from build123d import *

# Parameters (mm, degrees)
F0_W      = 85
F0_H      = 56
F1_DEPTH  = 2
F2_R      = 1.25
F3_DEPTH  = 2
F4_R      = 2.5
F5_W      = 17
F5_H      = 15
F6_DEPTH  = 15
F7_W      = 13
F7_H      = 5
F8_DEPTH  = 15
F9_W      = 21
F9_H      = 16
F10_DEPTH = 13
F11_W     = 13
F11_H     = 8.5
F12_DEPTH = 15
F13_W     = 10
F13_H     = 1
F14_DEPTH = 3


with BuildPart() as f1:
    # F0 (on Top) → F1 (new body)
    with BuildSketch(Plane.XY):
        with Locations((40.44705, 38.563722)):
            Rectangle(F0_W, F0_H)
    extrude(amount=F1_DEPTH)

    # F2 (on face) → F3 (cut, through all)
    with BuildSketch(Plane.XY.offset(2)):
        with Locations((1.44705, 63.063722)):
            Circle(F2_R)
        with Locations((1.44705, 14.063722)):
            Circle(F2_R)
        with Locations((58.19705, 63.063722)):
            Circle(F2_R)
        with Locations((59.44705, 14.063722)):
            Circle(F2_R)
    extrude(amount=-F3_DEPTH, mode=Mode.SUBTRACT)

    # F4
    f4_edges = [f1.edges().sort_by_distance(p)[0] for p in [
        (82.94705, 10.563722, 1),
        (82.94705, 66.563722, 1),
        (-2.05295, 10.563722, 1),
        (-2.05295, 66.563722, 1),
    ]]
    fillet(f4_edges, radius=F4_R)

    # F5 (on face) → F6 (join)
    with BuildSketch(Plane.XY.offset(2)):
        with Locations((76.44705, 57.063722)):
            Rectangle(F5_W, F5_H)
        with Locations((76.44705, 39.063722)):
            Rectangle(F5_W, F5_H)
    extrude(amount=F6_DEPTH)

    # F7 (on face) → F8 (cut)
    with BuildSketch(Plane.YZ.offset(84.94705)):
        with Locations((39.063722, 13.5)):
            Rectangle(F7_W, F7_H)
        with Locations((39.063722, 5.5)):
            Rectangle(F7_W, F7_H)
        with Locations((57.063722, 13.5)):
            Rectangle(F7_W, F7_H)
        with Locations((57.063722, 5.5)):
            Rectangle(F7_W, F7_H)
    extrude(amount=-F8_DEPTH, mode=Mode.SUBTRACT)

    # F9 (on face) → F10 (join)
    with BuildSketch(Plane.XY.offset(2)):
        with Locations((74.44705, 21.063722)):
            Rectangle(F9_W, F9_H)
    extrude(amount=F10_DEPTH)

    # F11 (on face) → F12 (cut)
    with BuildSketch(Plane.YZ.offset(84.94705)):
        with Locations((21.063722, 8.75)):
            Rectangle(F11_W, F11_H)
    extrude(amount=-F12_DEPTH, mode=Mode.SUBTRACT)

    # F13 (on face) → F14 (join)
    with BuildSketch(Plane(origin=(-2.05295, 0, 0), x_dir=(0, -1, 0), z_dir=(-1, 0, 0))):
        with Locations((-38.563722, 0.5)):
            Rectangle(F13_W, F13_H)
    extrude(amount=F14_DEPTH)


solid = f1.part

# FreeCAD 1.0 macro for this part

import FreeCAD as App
import Part
import Sketcher


def edges_at(feature, points):
    """Names of the edges that pass closest to the given points."""
    edges = feature.Shape.Edges
    near = lambda p: min(range(len(edges)), key=lambda i: edges[i].distToShape(Part.Vertex(*p))[0])
    return sorted({f"Edge{near(p) + 1}" for p in points})


def add_polygon(sketch, points):
    """Adds a closed chain of lines whose ends are joined by coincident constraints."""
    first, n = sketch.GeometryCount, len(points)
    for a, b in zip(points, points[1:] + points[:1]):
        sketch.addGeometry(Part.LineSegment(App.Vector(*a, 0), App.Vector(*b, 0)), False)
    for i in range(n):
        sketch.addConstraint(Sketcher.Constraint("Coincident", first + i, 2, first + (i + 1) % n, 1))

doc = App.newDocument("Part")
body = doc.addObject("PartDesign::Body", "Body")

# Sketch on XY plane
sketch1 = doc.addObject("Sketcher::SketchObject", "Sketch")
body.addObject(sketch1)
sketch1.AttachmentSupport = (doc.XY_Plane, [""])
sketch1.MapMode = "FlatFace"
add_polygon(sketch1, [(-2, 67), (-2, 11), (83, 11), (83, 67)])  # lines 0-3
sketch1.addConstraint(Sketcher.Constraint("Vertical", 0))
sketch1.addConstraint(Sketcher.Constraint("Horizontal", 1))
sketch1.addConstraint(Sketcher.Constraint("Vertical", 2))
sketch1.addConstraint(Sketcher.Constraint("Horizontal", 3))
sketch1.addConstraint(Sketcher.Constraint("DistanceX", 1, 1, 1, 2, 85.0))
sketch1.addConstraint(Sketcher.Constraint("DistanceY", 0, 2, 0, 1, 56.0))
sketch1.addConstraint(Sketcher.Constraint("DistanceX", 0, 2, -1, 1, 2.05295))
sketch1.addConstraint(Sketcher.Constraint("DistanceY", -1, 1, 2, 2, 66.563722))
pad1 = doc.addObject("PartDesign::Pad", "Pad")
body.addObject(pad1)
pad1.Profile = sketch1
pad1.Length = 2

# Sketch on XY plane
sketch2 = doc.addObject("Sketcher::SketchObject", "Sketch001")
body.addObject(sketch2)
sketch2.AttachmentSupport = (doc.XY_Plane, [""])
sketch2.MapMode = "FlatFace"
sketch2.AttachmentOffset = App.Placement(App.Vector(0, 0, 2), App.Rotation())
sketch2.addGeometry(Part.Circle(App.Vector(1.4, 63.1, 0), App.Vector(0, 0, 1), 1.2), False)
sketch2.addGeometry(Part.Circle(App.Vector(1.4, 14.1, 0), App.Vector(0, 0, 1), 1.2), False)
sketch2.addGeometry(Part.Circle(App.Vector(58.2, 63.1, 0), App.Vector(0, 0, 1), 1.2), False)
sketch2.addGeometry(Part.Circle(App.Vector(59.4, 14.1, 0), App.Vector(0, 0, 1), 1.2), False)
sketch2.addConstraint(Sketcher.Constraint("Equal", 0, 1))
sketch2.addConstraint(Sketcher.Constraint("Equal", 1, 2))
sketch2.addConstraint(Sketcher.Constraint("Equal", 2, 3))
sketch2.addConstraint(Sketcher.Constraint("Horizontal", 0, 3, 2, 3))
sketch2.addConstraint(Sketcher.Constraint("Horizontal", 1, 3, 3, 3))
sketch2.addConstraint(Sketcher.Constraint("Vertical", 0, 3, 1, 3))
sketch2.addConstraint(Sketcher.Constraint("Diameter", 0, 2.5))
sketch2.addConstraint(Sketcher.Constraint("DistanceY", 1, 3, 0, 3, 49.0))
sketch2.addConstraint(Sketcher.Constraint("DistanceX", 1, 3, 3, 3, 58.0))
sketch2.addConstraint(Sketcher.Constraint("DistanceX", 0, 3, 2, 3, 56.75))
sketch2.addConstraint(Sketcher.Constraint("DistanceX", -1, 1, 0, 3, 1.44705))
sketch2.addConstraint(Sketcher.Constraint("DistanceY", -1, 1, 0, 3, 63.063722))
pocket1 = doc.addObject("PartDesign::Pocket", "Pocket")
body.addObject(pocket1)
pocket1.Profile = sketch2
pocket1.Type = "ThroughAll"
doc.recompute()

fillet = doc.addObject("PartDesign::Fillet", "Fillet")
body.addObject(fillet)
fillet.Base = (pocket1, edges_at(pocket1, [
    (82.947, 10.564, 1),
    (82.947, 66.564, 1),
    (-2.053, 10.564, 1),
    (-2.053, 66.564, 1),
]))
fillet.Radius = 2.5

# Sketch on XY plane
sketch3 = doc.addObject("Sketcher::SketchObject", "Sketch002")
body.addObject(sketch3)
sketch3.AttachmentSupport = (doc.XY_Plane, [""])
sketch3.MapMode = "FlatFace"
sketch3.AttachmentOffset = App.Placement(App.Vector(0, 0, 2), App.Rotation())
add_polygon(sketch3, [(68, 65), (68, 50), (85, 50), (85, 65)])  # lines 0-3
add_polygon(sketch3, [(68, 47), (68, 32), (85, 32), (85, 47)])  # lines 4-7
sketch3.addConstraint(Sketcher.Constraint("Vertical", 0))
sketch3.addConstraint(Sketcher.Constraint("Horizontal", 1))
sketch3.addConstraint(Sketcher.Constraint("Vertical", 2))
sketch3.addConstraint(Sketcher.Constraint("Horizontal", 3))
sketch3.addConstraint(Sketcher.Constraint("Vertical", 4))
sketch3.addConstraint(Sketcher.Constraint("Horizontal", 5))
sketch3.addConstraint(Sketcher.Constraint("Vertical", 6))
sketch3.addConstraint(Sketcher.Constraint("Horizontal", 7))
sketch3.addConstraint(Sketcher.Constraint("Vertical", 3, 2, 4, 2))
sketch3.addConstraint(Sketcher.Constraint("Vertical", 2, 2, 5, 2))
sketch3.addConstraint(Sketcher.Constraint("Equal", 2, 4))
sketch3.addConstraint(Sketcher.Constraint("DistanceX", 1, 1, 1, 2, 17.0))
sketch3.addConstraint(Sketcher.Constraint("DistanceY", 0, 2, 0, 1, 15.0))
sketch3.addConstraint(Sketcher.Constraint("DistanceY", 4, 2, 0, 2, 18.0))
sketch3.addConstraint(Sketcher.Constraint("DistanceX", -1, 1, 0, 2, 67.94705))
sketch3.addConstraint(Sketcher.Constraint("DistanceY", -1, 1, 0, 2, 49.563722))
pad2 = doc.addObject("PartDesign::Pad", "Pad001")
body.addObject(pad2)
pad2.Profile = sketch3
pad2.Length = 15

# Sketch on YZ plane
sketch4 = doc.addObject("Sketcher::SketchObject", "Sketch003")
body.addObject(sketch4)
sketch4.AttachmentSupport = (doc.YZ_Plane, [""])
sketch4.MapMode = "FlatFace"
sketch4.AttachmentOffset = App.Placement(App.Vector(0, 0, 84.94705), App.Rotation())
add_polygon(sketch4, [(33, 16), (33, 11), (46, 11), (46, 16)])  # lines 0-3
add_polygon(sketch4, [(33, 8), (33, 3), (46, 3), (46, 8)])  # lines 4-7
add_polygon(sketch4, [(51, 16), (51, 11), (64, 11), (64, 16)])  # lines 8-11
add_polygon(sketch4, [(51, 8), (51, 3), (64, 3), (64, 8)])  # lines 12-15
sketch4.addConstraint(Sketcher.Constraint("Vertical", 0))
sketch4.addConstraint(Sketcher.Constraint("Horizontal", 1))
sketch4.addConstraint(Sketcher.Constraint("Vertical", 2))
sketch4.addConstraint(Sketcher.Constraint("Horizontal", 3))
sketch4.addConstraint(Sketcher.Constraint("Vertical", 4))
sketch4.addConstraint(Sketcher.Constraint("Horizontal", 5))
sketch4.addConstraint(Sketcher.Constraint("Vertical", 6))
sketch4.addConstraint(Sketcher.Constraint("Horizontal", 7))
sketch4.addConstraint(Sketcher.Constraint("Vertical", 8))
sketch4.addConstraint(Sketcher.Constraint("Horizontal", 9))
sketch4.addConstraint(Sketcher.Constraint("Vertical", 10))
sketch4.addConstraint(Sketcher.Constraint("Horizontal", 11))
sketch4.addConstraint(Sketcher.Constraint("Vertical", 12))
sketch4.addConstraint(Sketcher.Constraint("Horizontal", 13))
sketch4.addConstraint(Sketcher.Constraint("Vertical", 14))
sketch4.addConstraint(Sketcher.Constraint("Horizontal", 15))
sketch4.addConstraint(Sketcher.Constraint("Horizontal", 1, 2, 8, 2))
sketch4.addConstraint(Sketcher.Constraint("Horizontal", 3, 2, 10, 2))
sketch4.addConstraint(Sketcher.Constraint("Horizontal", 5, 2, 12, 2))
sketch4.addConstraint(Sketcher.Constraint("Horizontal", 7, 2, 14, 2))
sketch4.addConstraint(Sketcher.Constraint("Vertical", 3, 2, 4, 2))
sketch4.addConstraint(Sketcher.Constraint("Vertical", 2, 2, 5, 2))
sketch4.addConstraint(Sketcher.Constraint("Vertical", 11, 2, 12, 2))
sketch4.addConstraint(Sketcher.Constraint("Vertical", 10, 2, 13, 2))
sketch4.addConstraint(Sketcher.Constraint("Equal", 7, 9))
sketch4.addConstraint(Sketcher.Constraint("Equal", 2, 4))
sketch4.addConstraint(Sketcher.Constraint("DistanceX", 1, 1, 1, 2, 13.0))
sketch4.addConstraint(Sketcher.Constraint("DistanceY", 0, 2, 0, 1, 5.0))
sketch4.addConstraint(Sketcher.Constraint("DistanceY", -1, 1, 0, 2, 11.0))
sketch4.addConstraint(Sketcher.Constraint("DistanceY", -1, 1, 4, 2, 3.0))
sketch4.addConstraint(Sketcher.Constraint("DistanceX", 1, 2, 8, 2, 5.0))
sketch4.addConstraint(Sketcher.Constraint("DistanceX", -1, 1, 0, 2, 32.563722))
pocket2 = doc.addObject("PartDesign::Pocket", "Pocket001")
body.addObject(pocket2)
pocket2.Profile = sketch4
pocket2.Length = 15

# Sketch on XY plane
sketch5 = doc.addObject("Sketcher::SketchObject", "Sketch004")
body.addObject(sketch5)
sketch5.AttachmentSupport = (doc.XY_Plane, [""])
sketch5.MapMode = "FlatFace"
sketch5.AttachmentOffset = App.Placement(App.Vector(0, 0, 2), App.Rotation())
add_polygon(sketch5, [(64, 29), (64, 13), (85, 13), (85, 29)])  # lines 0-3
sketch5.addConstraint(Sketcher.Constraint("Vertical", 0))
sketch5.addConstraint(Sketcher.Constraint("Horizontal", 1))
sketch5.addConstraint(Sketcher.Constraint("Vertical", 2))
sketch5.addConstraint(Sketcher.Constraint("Horizontal", 3))
sketch5.addConstraint(Sketcher.Constraint("DistanceX", 1, 1, 1, 2, 21.0))
sketch5.addConstraint(Sketcher.Constraint("DistanceY", 0, 2, 0, 1, 16.0))
sketch5.addConstraint(Sketcher.Constraint("DistanceX", -1, 1, 0, 2, 63.94705))
sketch5.addConstraint(Sketcher.Constraint("DistanceY", -1, 1, 2, 2, 29.063722))
pad3 = doc.addObject("PartDesign::Pad", "Pad002")
body.addObject(pad3)
pad3.Profile = sketch5
pad3.Length = 13

# Sketch on YZ plane
sketch6 = doc.addObject("Sketcher::SketchObject", "Sketch005")
body.addObject(sketch6)
sketch6.AttachmentSupport = (doc.YZ_Plane, [""])
sketch6.MapMode = "FlatFace"
sketch6.AttachmentOffset = App.Placement(App.Vector(0, 0, 84.94705), App.Rotation())
add_polygon(sketch6, [(15, 13), (15, 4), (28, 4), (28, 13)])  # lines 0-3
sketch6.addConstraint(Sketcher.Constraint("Vertical", 0))
sketch6.addConstraint(Sketcher.Constraint("Horizontal", 1))
sketch6.addConstraint(Sketcher.Constraint("Vertical", 2))
sketch6.addConstraint(Sketcher.Constraint("Horizontal", 3))
sketch6.addConstraint(Sketcher.Constraint("DistanceX", 1, 1, 1, 2, 13.0))
sketch6.addConstraint(Sketcher.Constraint("DistanceY", 0, 2, 0, 1, 8.5))
sketch6.addConstraint(Sketcher.Constraint("DistanceY", -1, 1, 2, 2, 13.0))
sketch6.addConstraint(Sketcher.Constraint("DistanceX", -1, 1, 1, 2, 27.563722))
pocket3 = doc.addObject("PartDesign::Pocket", "Pocket002")
body.addObject(pocket3)
pocket3.Profile = sketch6
pocket3.Length = 15

# Sketch on YZ plane
sketch7 = doc.addObject("Sketcher::SketchObject", "Sketch006")
body.addObject(sketch7)
sketch7.AttachmentSupport = (doc.YZ_Plane, [""])
sketch7.MapMode = "FlatFace"
sketch7.AttachmentOffset = App.Placement(App.Vector(0, 0, -2.05295), App.Rotation())
add_polygon(sketch7, [(43.6, 1), (43.6, 0), (33.6, 0), (33.6, 1)])  # lines 0-3
sketch7.addConstraint(Sketcher.Constraint("Vertical", 0))
sketch7.addConstraint(Sketcher.Constraint("Horizontal", 1))
sketch7.addConstraint(Sketcher.Constraint("Vertical", 2))
sketch7.addConstraint(Sketcher.Constraint("Horizontal", 3))
sketch7.addConstraint(Sketcher.Constraint("PointOnObject", 0, 2, -1))
sketch7.addConstraint(Sketcher.Constraint("DistanceX", 1, 2, 1, 1, 10.0))
sketch7.addConstraint(Sketcher.Constraint("DistanceY", 0, 2, 0, 1, 1.0))
sketch7.addConstraint(Sketcher.Constraint("DistanceX", -1, 1, 0, 2, 43.563722))
pad4 = doc.addObject("PartDesign::Pad", "Pad003")
body.addObject(pad4)
pad4.Profile = sketch7
pad4.Length = 3
pad4.Reversed = True

doc.recompute()
